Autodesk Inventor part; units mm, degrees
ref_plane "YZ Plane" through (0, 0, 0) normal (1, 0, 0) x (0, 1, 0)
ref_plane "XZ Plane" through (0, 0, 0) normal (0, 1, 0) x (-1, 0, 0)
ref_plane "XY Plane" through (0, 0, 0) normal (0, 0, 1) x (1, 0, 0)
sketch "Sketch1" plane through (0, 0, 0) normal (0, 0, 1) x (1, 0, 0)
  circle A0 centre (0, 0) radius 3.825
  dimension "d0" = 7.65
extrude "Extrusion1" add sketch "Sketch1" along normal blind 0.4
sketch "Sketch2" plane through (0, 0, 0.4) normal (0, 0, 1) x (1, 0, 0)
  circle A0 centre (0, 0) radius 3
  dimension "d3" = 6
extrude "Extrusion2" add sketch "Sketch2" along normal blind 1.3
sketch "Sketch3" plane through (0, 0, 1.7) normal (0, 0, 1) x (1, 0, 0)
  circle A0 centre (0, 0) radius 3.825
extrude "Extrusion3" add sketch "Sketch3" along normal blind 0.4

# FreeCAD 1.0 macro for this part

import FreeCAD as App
import Part
import Sketcher
from FreeCAD import Vector

doc = App.newDocument("Part")
params = doc.addObject("Spreadsheet::Sheet", "Params")
for row, (alias, value) in enumerate([
    ("sketch1_diameter", "7.65 mm"),
    ("pad1_length", "0.4 mm"),
    ("sketch2_diameter", "6 mm"),
    ("pad2_length", "1.3 mm"),
    ("sketch3_diameter", "7.65 mm"),
    ("pad3_length", "0.4 mm"),
], start=1):
    params.set(f"A{row}", alias)
    params.set(f"B{row}", "=" + value)
    params.setAlias(f"B{row}", alias)

body = doc.addObject("PartDesign::Body", "Body")

# Sketch on XY plane
sketch1 = doc.addObject("Sketcher::SketchObject", "Sketch")
body.addObject(sketch1)
sketch1.AttachmentSupport = (doc.XY_Plane, [""])
sketch1.MapMode = "FlatFace"
sketch1.addGeometry(Part.Circle(Vector(0, 0, 0), Vector(0, 0, 1), 3.825), False)
sketch1.addConstraint([
    Sketcher.Constraint("Coincident", 0, 3, -1, 1),
    Sketcher.Constraint("Diameter", 0, 7.65),
])
sketch1.setExpression("Constraints[1]", "Params.sketch1_diameter")
pad1 = doc.addObject("PartDesign::Pad", "Pad")
body.addObject(pad1)
pad1.Profile = sketch1
pad1.setExpression("Length", "Params.pad1_length")

# Sketch on XY plane
sketch2 = doc.addObject("Sketcher::SketchObject", "Sketch001")
body.addObject(sketch2)
sketch2.AttachmentSupport = (doc.XY_Plane, [""])
sketch2.MapMode = "FlatFace"
sketch2.AttachmentOffset = App.Placement(Vector(0, 0, 0.4), App.Rotation())
sketch2.addGeometry(Part.Circle(Vector(0, 0, 0), Vector(0, 0, 1), 3), False)
sketch2.addConstraint([
    Sketcher.Constraint("Coincident", 0, 3, -1, 1),
    Sketcher.Constraint("Diameter", 0, 6.0),
])
sketch2.setExpression("Constraints[1]", "Params.sketch2_diameter")
pad2 = doc.addObject("PartDesign::Pad", "Pad001")
body.addObject(pad2)
pad2.Profile = sketch2
pad2.setExpression("Length", "Params.pad2_length")

# Sketch on XY plane
sketch3 = doc.addObject("Sketcher::SketchObject", "Sketch002")
body.addObject(sketch3)
sketch3.AttachmentSupport = (doc.XY_Plane, [""])
sketch3.MapMode = "FlatFace"
sketch3.AttachmentOffset = App.Placement(Vector(0, 0, 1.7), App.Rotation())
sketch3.addGeometry(Part.Circle(Vector(0, 0, 0), Vector(0, 0, 1), 3.825), False)
sketch3.addConstraint([
    Sketcher.Constraint("Coincident", 0, 3, -1, 1),
    Sketcher.Constraint("Diameter", 0, 7.65),
])
sketch3.setExpression("Constraints[1]", "Params.sketch3_diameter")
pad3 = doc.addObject("PartDesign::Pad", "Pad002")
body.addObject(pad3)
pad3.Profile = sketch3
pad3.setExpression("Length", "Params.pad3_length")

doc.recompute()
